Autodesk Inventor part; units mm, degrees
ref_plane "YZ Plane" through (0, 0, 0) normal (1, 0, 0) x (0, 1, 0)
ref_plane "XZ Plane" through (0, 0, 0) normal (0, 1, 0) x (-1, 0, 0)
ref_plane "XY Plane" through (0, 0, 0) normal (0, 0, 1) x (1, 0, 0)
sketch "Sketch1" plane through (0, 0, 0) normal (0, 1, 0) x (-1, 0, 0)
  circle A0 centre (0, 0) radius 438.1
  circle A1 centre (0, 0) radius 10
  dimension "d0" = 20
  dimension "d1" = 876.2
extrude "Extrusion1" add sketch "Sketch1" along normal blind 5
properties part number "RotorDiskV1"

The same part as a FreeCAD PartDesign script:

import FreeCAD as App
import Part
import Sketcher
Q = App.Units.Quantity

doc = App.newDocument("Part")
params = doc.addObject("Spreadsheet::Sheet", "Params")
for row, (alias, value) in enumerate([
    ("sketch1_diameter", "20 mm"),
    ("sketch1_diameter2", "876.2 mm"),
    ("pad1_length", "5 mm"),
], start=1):
    params.set(f"A{row}", alias)
    params.set(f"B{row}", "=" + value)
    params.setAlias(f"B{row}", alias)

body = doc.addObject("PartDesign::Body", "Body")

# Sketch on XZ plane
sketch1 = body.newObject("Sketcher::SketchObject", "Sketch")
sketch1.AttachmentSupport = (doc.getObject("XZ_Plane"), [""])
sketch1.MapMode = "FlatFace"
sketch1.addGeometry([
    Part.Circle(App.Vector(0, 0, 0), App.Vector(0, 0, 1), 438),
    Part.Circle(App.Vector(0, 0, 0), App.Vector(0, 0, 1), 10),
], False)
sketch1.addConstraint([
    Sketcher.Constraint("Coincident", 0, 3, -1, 1),
    Sketcher.Constraint("Coincident", 1, 3, -1, 1),
    Sketcher.Constraint("Diameter", 1, Q("20 mm")),
    Sketcher.Constraint("Diameter", 0, Q("876.2 mm")),
])
sketch1.setExpression("Constraints[2]", "Params.sketch1_diameter")
sketch1.setExpression("Constraints[3]", "Params.sketch1_diameter2")
pad1 = body.newObject("PartDesign::Pad", "Pad")
pad1.Profile = sketch1
pad1.setExpression("Length", "Params.pad1_length")
pad1.Reversed = True

doc.recompute()
